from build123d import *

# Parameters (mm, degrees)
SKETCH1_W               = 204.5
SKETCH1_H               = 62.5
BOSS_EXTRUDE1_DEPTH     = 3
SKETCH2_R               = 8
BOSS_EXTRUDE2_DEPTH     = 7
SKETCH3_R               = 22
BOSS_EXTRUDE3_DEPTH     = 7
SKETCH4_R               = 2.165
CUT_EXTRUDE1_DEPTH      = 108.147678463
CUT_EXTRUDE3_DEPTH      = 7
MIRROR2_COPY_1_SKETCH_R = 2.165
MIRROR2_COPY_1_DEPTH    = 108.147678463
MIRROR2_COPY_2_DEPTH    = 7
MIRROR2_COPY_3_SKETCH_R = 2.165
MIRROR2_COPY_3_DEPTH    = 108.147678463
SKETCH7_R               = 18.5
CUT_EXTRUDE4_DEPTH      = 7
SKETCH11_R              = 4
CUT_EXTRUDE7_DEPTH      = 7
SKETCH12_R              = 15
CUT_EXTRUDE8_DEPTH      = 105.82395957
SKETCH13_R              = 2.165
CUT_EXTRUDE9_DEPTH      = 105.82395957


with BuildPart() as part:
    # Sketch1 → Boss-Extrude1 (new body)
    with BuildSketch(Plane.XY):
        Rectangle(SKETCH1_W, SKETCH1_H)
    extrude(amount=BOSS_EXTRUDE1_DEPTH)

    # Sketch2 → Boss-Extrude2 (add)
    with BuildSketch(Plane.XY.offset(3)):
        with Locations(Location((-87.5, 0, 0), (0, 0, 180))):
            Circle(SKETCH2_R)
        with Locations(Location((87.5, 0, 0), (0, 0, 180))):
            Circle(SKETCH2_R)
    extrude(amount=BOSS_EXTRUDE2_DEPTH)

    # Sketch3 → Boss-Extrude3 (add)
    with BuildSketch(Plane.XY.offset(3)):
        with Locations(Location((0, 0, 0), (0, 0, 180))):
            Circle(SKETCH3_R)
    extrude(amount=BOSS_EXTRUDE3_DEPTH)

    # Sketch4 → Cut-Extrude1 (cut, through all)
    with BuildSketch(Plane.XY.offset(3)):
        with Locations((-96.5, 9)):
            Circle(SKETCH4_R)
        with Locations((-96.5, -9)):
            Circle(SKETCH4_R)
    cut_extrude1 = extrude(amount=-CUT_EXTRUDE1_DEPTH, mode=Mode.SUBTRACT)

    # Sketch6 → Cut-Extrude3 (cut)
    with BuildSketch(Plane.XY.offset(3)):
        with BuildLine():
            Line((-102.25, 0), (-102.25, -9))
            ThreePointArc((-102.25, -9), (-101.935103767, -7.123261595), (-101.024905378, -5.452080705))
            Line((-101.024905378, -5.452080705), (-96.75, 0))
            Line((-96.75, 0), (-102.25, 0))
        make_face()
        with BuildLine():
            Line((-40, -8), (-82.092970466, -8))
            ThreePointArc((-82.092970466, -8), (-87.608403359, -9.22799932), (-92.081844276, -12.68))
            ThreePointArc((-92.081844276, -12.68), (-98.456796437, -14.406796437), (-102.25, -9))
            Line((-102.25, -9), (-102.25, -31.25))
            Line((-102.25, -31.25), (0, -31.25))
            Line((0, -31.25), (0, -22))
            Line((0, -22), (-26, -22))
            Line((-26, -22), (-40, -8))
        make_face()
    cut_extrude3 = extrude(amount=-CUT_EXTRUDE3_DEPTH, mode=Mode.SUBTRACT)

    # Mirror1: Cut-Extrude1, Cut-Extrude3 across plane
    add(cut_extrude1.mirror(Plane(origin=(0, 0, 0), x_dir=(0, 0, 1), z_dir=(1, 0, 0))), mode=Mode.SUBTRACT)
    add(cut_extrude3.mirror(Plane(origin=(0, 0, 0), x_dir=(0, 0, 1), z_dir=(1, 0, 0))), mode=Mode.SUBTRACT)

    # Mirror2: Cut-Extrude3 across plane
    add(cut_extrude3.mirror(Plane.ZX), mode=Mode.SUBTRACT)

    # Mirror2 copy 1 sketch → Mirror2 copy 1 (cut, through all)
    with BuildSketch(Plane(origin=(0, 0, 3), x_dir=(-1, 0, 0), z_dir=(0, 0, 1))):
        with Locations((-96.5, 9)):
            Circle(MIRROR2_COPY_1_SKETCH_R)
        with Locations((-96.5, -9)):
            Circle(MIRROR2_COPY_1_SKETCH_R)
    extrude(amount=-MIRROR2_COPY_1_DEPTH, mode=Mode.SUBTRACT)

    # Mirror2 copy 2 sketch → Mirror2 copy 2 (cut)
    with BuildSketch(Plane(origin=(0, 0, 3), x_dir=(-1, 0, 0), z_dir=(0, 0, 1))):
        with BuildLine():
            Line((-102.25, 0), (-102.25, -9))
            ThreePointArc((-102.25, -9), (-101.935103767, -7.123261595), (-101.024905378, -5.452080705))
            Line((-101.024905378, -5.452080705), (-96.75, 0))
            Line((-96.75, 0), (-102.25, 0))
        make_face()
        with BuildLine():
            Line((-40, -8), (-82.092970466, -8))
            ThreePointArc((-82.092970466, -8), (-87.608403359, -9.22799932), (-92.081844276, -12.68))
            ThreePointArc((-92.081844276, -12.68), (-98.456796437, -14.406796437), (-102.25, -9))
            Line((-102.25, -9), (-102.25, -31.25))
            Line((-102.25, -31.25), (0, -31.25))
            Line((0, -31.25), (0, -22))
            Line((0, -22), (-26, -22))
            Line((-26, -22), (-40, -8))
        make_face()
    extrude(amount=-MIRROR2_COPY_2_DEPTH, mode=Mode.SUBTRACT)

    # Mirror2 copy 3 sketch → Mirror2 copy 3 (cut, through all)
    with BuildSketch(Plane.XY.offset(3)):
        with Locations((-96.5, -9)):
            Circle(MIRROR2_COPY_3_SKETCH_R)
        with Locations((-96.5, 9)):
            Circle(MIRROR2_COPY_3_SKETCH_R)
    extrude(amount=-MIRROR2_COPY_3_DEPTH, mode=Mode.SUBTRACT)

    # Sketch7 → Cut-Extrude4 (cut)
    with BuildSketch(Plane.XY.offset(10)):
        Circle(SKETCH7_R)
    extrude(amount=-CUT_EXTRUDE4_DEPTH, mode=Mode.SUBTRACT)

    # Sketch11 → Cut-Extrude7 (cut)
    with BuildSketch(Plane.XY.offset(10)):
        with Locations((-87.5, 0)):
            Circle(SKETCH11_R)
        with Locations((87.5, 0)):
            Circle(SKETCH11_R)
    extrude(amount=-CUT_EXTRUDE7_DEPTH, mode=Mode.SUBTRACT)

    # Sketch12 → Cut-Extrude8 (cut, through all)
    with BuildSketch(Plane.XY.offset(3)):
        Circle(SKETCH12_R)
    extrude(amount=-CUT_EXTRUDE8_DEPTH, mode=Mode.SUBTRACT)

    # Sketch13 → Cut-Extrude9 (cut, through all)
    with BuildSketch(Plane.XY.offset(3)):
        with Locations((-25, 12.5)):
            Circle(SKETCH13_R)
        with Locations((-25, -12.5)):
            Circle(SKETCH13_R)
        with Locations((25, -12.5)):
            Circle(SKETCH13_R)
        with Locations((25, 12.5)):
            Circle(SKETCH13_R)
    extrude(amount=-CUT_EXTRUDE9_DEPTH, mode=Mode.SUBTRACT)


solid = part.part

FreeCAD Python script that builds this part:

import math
import FreeCAD as App
import Part
import Sketcher
Q = App.Units.Quantity


def add_polygon(sketch, points):
    """Adds a closed chain of lines whose ends are joined by coincident constraints."""
    first, n = sketch.GeometryCount, len(points)
    for a, b in zip(points, points[1:] + points[:1]):
        sketch.addGeometry(Part.LineSegment(App.Vector(*a, 0), App.Vector(*b, 0)), False)
    for i in range(n):
        sketch.addConstraint(Sketcher.Constraint("Coincident", first + i, 2, first + (i + 1) % n, 1))

doc = App.newDocument("Part")
body = doc.addObject("PartDesign::Body", "Body")

# Sketch on XY plane
sketch1 = doc.addObject("Sketcher::SketchObject", "Sketch")
body.addObject(sketch1)
sketch1.AttachmentSupport = (doc.XY_Plane, [""])
sketch1.MapMode = "FlatFace"
add_polygon(sketch1, [(-102, 31), (-102, -31), (102, -31), (102, 31)])  # lines 0-3
sketch1.addConstraint([
    Sketcher.Constraint("Vertical", 0),
    Sketcher.Constraint("Horizontal", 1),
    Sketcher.Constraint("Vertical", 2),
    Sketcher.Constraint("Horizontal", 3),
    Sketcher.Constraint("Symmetric", 0, 2, 2, 2, -1, 1),
    Sketcher.Constraint("DistanceX", 1, 1, 1, 2, Q("204.5 mm")),
    Sketcher.Constraint("DistanceY", 0, 2, 0, 1, Q("62.5 mm")),
])
pad1 = doc.addObject("PartDesign::Pad", "Pad")
body.addObject(pad1)
pad1.Profile = sketch1
pad1.Length = 3

# Sketch on XY plane
sketch2 = doc.addObject("Sketcher::SketchObject", "Sketch001")
body.addObject(sketch2)
sketch2.AttachmentSupport = (doc.XY_Plane, [""])
sketch2.MapMode = "FlatFace"
sketch2.AttachmentOffset = App.Placement(App.Vector(0, 0, 3), App.Rotation())
sketch2.addGeometry([
    Part.Circle(App.Vector(-88, 0, 0), App.Vector(0, 0, 1), 8),
    Part.Circle(App.Vector(88, 0, 0), App.Vector(0, 0, 1), 8),
], False)
sketch2.addConstraint([
    Sketcher.Constraint("Equal", 0, 1),
    Sketcher.Constraint("Symmetric", 0, 3, 1, 3, -1, 1),
    Sketcher.Constraint("PointOnObject", 0, 3, -1),
    Sketcher.Constraint("Diameter", 0, Q("16 mm")),
    Sketcher.Constraint("DistanceX", 0, 3, 1, 3, Q("175 mm")),
])
pad2 = doc.addObject("PartDesign::Pad", "Pad001")
body.addObject(pad2)
pad2.Profile = sketch2
pad2.Length = 7

# Sketch on XY plane
sketch3 = doc.addObject("Sketcher::SketchObject", "Sketch002")
body.addObject(sketch3)
sketch3.AttachmentSupport = (doc.XY_Plane, [""])
sketch3.MapMode = "FlatFace"
sketch3.AttachmentOffset = App.Placement(App.Vector(0, 0, 3), App.Rotation())
sketch3.addGeometry(Part.Circle(App.Vector(0, 0, 0), App.Vector(0, 0, 1), 22), False)
sketch3.addConstraint([
    Sketcher.Constraint("Coincident", 0, 3, -1, 1),
    Sketcher.Constraint("Diameter", 0, Q("44 mm")),
])
pad3 = doc.addObject("PartDesign::Pad", "Pad002")
body.addObject(pad3)
pad3.Profile = sketch3
pad3.Length = 7

# Sketch on XY plane
sketch4 = doc.addObject("Sketcher::SketchObject", "Sketch003")
body.addObject(sketch4)
sketch4.AttachmentSupport = (doc.XY_Plane, [""])
sketch4.MapMode = "FlatFace"
sketch4.AttachmentOffset = App.Placement(App.Vector(0, 0, 3), App.Rotation())
sketch4.addGeometry([
    Part.Circle(App.Vector(-96.5, 9, 0), App.Vector(0, 0, 1), 2.2),
    Part.Circle(App.Vector(-96.5, -9, 0), App.Vector(0, 0, 1), 2.2),
], False)
sketch4.addConstraint([
    Sketcher.Constraint("Equal", 0, 1),
    Sketcher.Constraint("Symmetric", 0, 3, 1, 3, -1),
    Sketcher.Constraint("Diameter", 0, Q("4.33 mm")),
    Sketcher.Constraint("DistanceY", -1, 1, 0, 3, Q("9 mm")),
    Sketcher.Constraint("DistanceX", 0, 3, -1, 1, Q("96.5 mm")),
])
pocket1 = doc.addObject("PartDesign::Pocket", "Pocket")
body.addObject(pocket1)
pocket1.Profile = sketch4
pocket1.Type = "ThroughAll"

# Sketch on XY plane
sketch5 = doc.addObject("Sketcher::SketchObject", "Sketch004")
body.addObject(sketch5)
sketch5.AttachmentSupport = (doc.XY_Plane, [""])
sketch5.MapMode = "FlatFace"
sketch5.AttachmentOffset = App.Placement(App.Vector(0, 0, 3), App.Rotation())
sketch5.addGeometry([
    Part.LineSegment(App.Vector(-102.2, 0, 0), App.Vector(-102.2, -9, 0)),  # 0
    Part.ArcOfCircle(Part.Circle(App.Vector(-96.5, -9, 0), App.Vector(0, 0, 1), 5.8), math.radians(142), math.radians(180)),  # 1
    Part.LineSegment(App.Vector(-101, -5.5, 0), App.Vector(-96.8, 0, 0)),  # 2
    Part.LineSegment(App.Vector(-96.8, 0, 0), App.Vector(-102.2, 0, 0)),  # 3
    Part.LineSegment(App.Vector(-40, -8, 0), App.Vector(-82.1, -8, 0)),  # 4
    Part.ArcOfCircle(Part.Circle(App.Vector(-82.1, -21, 0), App.Vector(0, 0, 1), 13), math.radians(90), math.radians(140)),  # 5
    Part.ArcOfCircle(Part.Circle(App.Vector(-96.5, -9, 0), App.Vector(0, 0, 1), 5.8), math.radians(180), math.radians(320)),  # 6
    Part.LineSegment(App.Vector(-102.2, -9, 0), App.Vector(-102.2, -31.2, 0)),  # 7
    Part.LineSegment(App.Vector(-102.2, -31.2, 0), App.Vector(0, -31.2, 0)),  # 8
    Part.LineSegment(App.Vector(0, -31.2, 0), App.Vector(0, -22, 0)),  # 9
    Part.LineSegment(App.Vector(0, -22, 0), App.Vector(-26, -22, 0)),  # 10
    Part.LineSegment(App.Vector(-26, -22, 0), App.Vector(-40, -8, 0)),  # 11
], False)
sketch5.addConstraint([
    Sketcher.Constraint("Tangent", 0, 2, 1, 2),
    Sketcher.Constraint("Tangent", 1, 1, 2, 1),
    Sketcher.Constraint("Coincident", 2, 2, 3, 1),
    Sketcher.Constraint("Coincident", 3, 2, 0, 1),
    Sketcher.Constraint("Tangent", 4, 2, 5, 1),
    Sketcher.Constraint("Tangent", 5, 2, 6, 2),
    Sketcher.Constraint("Tangent", 6, 1, 7, 1),
    Sketcher.Constraint("Coincident", 7, 2, 8, 1),
    Sketcher.Constraint("Coincident", 8, 2, 9, 1),
    Sketcher.Constraint("Coincident", 9, 2, 10, 1),
    Sketcher.Constraint("Coincident", 10, 2, 11, 1),
    Sketcher.Constraint("Coincident", 11, 2, 4, 1),
    Sketcher.Constraint("Vertical", 0),
    Sketcher.Constraint("Horizontal", 3),
    Sketcher.Constraint("Horizontal", 4),
    Sketcher.Constraint("Vertical", 7),
    Sketcher.Constraint("Horizontal", 8),
    Sketcher.Constraint("Vertical", 9),
    Sketcher.Constraint("Horizontal", 10),
    Sketcher.Constraint("Coincident", 6, 3, 1, 3),
    Sketcher.Constraint("Equal", 1, 6),
    Sketcher.Constraint("PointOnObject", 2, 2, -1),
    Sketcher.Constraint("PointOnObject", 8, 2, -2),
    Sketcher.Constraint("Radius", 5, Q("13 mm")),
    Sketcher.Constraint("DistanceX", 10, 2, 10, 1, Q("26 mm")),
    Sketcher.Constraint("DistanceY", 0, 2, 0, 1, Q("9 mm")),
    Sketcher.Constraint("Angle", 11, Q("135 deg")),
    Sketcher.Constraint("Radius", 1, Q("5.75 mm")),
    Sketcher.Constraint("DistanceX", 3, 2, 3, 1, Q("5.5 mm")),
    Sketcher.Constraint("DistanceY", 5, 3, -1, 1, Q("21 mm")),
    Sketcher.Constraint("DistanceY", 9, 2, -1, 1, Q("22 mm")),
    Sketcher.Constraint("DistanceX", 8, 1, 8, 2, Q("102.25 mm")),
    Sketcher.Constraint("DistanceY", 7, 2, 7, 1, Q("22.25 mm")),
])
pocket2 = doc.addObject("PartDesign::Pocket", "Pocket001")
body.addObject(pocket2)
pocket2.Profile = sketch5
pocket2.Length = 7
doc.recompute()

mirrored = doc.addObject("PartDesign::Mirrored", "Mirrored")
body.addObject(mirrored)
mirrored.Originals = [pocket1, pocket2]
mirrored.MirrorPlane = (doc.YZ_Plane, [""])
body.Tip = mirrored
doc.recompute()

mirrored2 = doc.addObject("PartDesign::Mirrored", "Mirrored001")
body.addObject(mirrored2)
mirrored2.Originals = [pocket2]
mirrored2.MirrorPlane = (doc.XZ_Plane, [""])
body.Tip = mirrored2

# Sketch on XY plane
sketch6 = doc.addObject("Sketcher::SketchObject", "Sketch005")
body.addObject(sketch6)
sketch6.AttachmentSupport = (doc.XY_Plane, [""])
sketch6.MapMode = "FlatFace"
sketch6.AttachmentOffset = App.Placement(App.Vector(0, 0, 3), App.Rotation())
sketch6.addGeometry([
    Part.Circle(App.Vector(96.5, -9, 0), App.Vector(0, 0, 1), 2.2),
    Part.Circle(App.Vector(96.5, 9, 0), App.Vector(0, 0, 1), 2.2),
], False)
sketch6.addConstraint([
    Sketcher.Constraint("Equal", 0, 1),
    Sketcher.Constraint("Symmetric", 0, 3, 1, 3, -1),
    Sketcher.Constraint("Diameter", 0, Q("4.33 mm")),
    Sketcher.Constraint("DistanceY", 0, 3, -1, 1, Q("9 mm")),
    Sketcher.Constraint("DistanceX", -1, 1, 0, 3, Q("96.5 mm")),
])
pocket3 = doc.addObject("PartDesign::Pocket", "Pocket002")
body.addObject(pocket3)
pocket3.Profile = sketch6
pocket3.Type = "ThroughAll"

# Sketch on XY plane
sketch7 = doc.addObject("Sketcher::SketchObject", "Sketch006")
body.addObject(sketch7)
sketch7.AttachmentSupport = (doc.XY_Plane, [""])
sketch7.MapMode = "FlatFace"
sketch7.AttachmentOffset = App.Placement(App.Vector(0, 0, 3), App.Rotation())
sketch7.addGeometry([
    Part.LineSegment(App.Vector(102.2, 0, 0), App.Vector(102.2, 9, 0)),  # 0
    Part.ArcOfCircle(Part.Circle(App.Vector(96.5, 9, 0), App.Vector(0, 0, 1), 5.8), math.radians(-38), math.radians(0)),  # 1
    Part.LineSegment(App.Vector(101, 5.5, 0), App.Vector(96.8, 0, 0)),  # 2
    Part.LineSegment(App.Vector(96.8, 0, 0), App.Vector(102.2, 0, 0)),  # 3
    Part.LineSegment(App.Vector(40, 8, 0), App.Vector(82.1, 8, 0)),  # 4
    Part.ArcOfCircle(Part.Circle(App.Vector(82.1, 21, 0), App.Vector(0, 0, 1), 13), math.radians(-90), math.radians(-40)),  # 5
    Part.ArcOfCircle(Part.Circle(App.Vector(96.5, 9, 0), App.Vector(0, 0, 1), 5.8), math.radians(0), math.radians(140)),  # 6
    Part.LineSegment(App.Vector(102.2, 9, 0), App.Vector(102.2, 31.2, 0)),  # 7
    Part.LineSegment(App.Vector(102.2, 31.2, 0), App.Vector(0, 31.2, 0)),  # 8
    Part.LineSegment(App.Vector(0, 31.2, 0), App.Vector(0, 22, 0)),  # 9
    Part.LineSegment(App.Vector(0, 22, 0), App.Vector(26, 22, 0)),  # 10
    Part.LineSegment(App.Vector(26, 22, 0), App.Vector(40, 8, 0)),  # 11
], False)
sketch7.addConstraint([
    Sketcher.Constraint("Tangent", 0, 2, 1, 2),
    Sketcher.Constraint("Tangent", 1, 1, 2, 1),
    Sketcher.Constraint("Coincident", 2, 2, 3, 1),
    Sketcher.Constraint("Coincident", 3, 2, 0, 1),
    Sketcher.Constraint("Tangent", 4, 2, 5, 1),
    Sketcher.Constraint("Tangent", 5, 2, 6, 2),
    Sketcher.Constraint("Tangent", 6, 1, 7, 1),
    Sketcher.Constraint("Coincident", 7, 2, 8, 1),
    Sketcher.Constraint("Coincident", 8, 2, 9, 1),
    Sketcher.Constraint("Coincident", 9, 2, 10, 1),
    Sketcher.Constraint("Coincident", 10, 2, 11, 1),
    Sketcher.Constraint("Coincident", 11, 2, 4, 1),
    Sketcher.Constraint("Vertical", 0),
    Sketcher.Constraint("Horizontal", 3),
    Sketcher.Constraint("Horizontal", 4),
    Sketcher.Constraint("Vertical", 7),
    Sketcher.Constraint("Horizontal", 8),
    Sketcher.Constraint("Vertical", 9),
    Sketcher.Constraint("Horizontal", 10),
    Sketcher.Constraint("Coincident", 6, 3, 1, 3),
    Sketcher.Constraint("Equal", 1, 6),
    Sketcher.Constraint("PointOnObject", 2, 2, -1),
    Sketcher.Constraint("PointOnObject", 8, 2, -2),
    Sketcher.Constraint("Radius", 5, Q("13 mm")),
    Sketcher.Constraint("DistanceX", 10, 1, 10, 2, Q("26 mm")),
    Sketcher.Constraint("DistanceY", 0, 1, 0, 2, Q("9 mm")),
    Sketcher.Constraint("Angle", 11, Q("-45 deg")),
    Sketcher.Constraint("Radius", 1, Q("5.75 mm")),
    Sketcher.Constraint("DistanceX", 3, 1, 3, 2, Q("5.5 mm")),
    Sketcher.Constraint("DistanceY", -1, 1, 5, 3, Q("21 mm")),
    Sketcher.Constraint("DistanceY", -1, 1, 9, 2, Q("22 mm")),
    Sketcher.Constraint("DistanceX", 8, 2, 8, 1, Q("102.25 mm")),
    Sketcher.Constraint("DistanceY", 7, 1, 7, 2, Q("22.25 mm")),
])
pocket4 = doc.addObject("PartDesign::Pocket", "Pocket003")
body.addObject(pocket4)
pocket4.Profile = sketch7
pocket4.Length = 7

# Sketch on XY plane
sketch8 = doc.addObject("Sketcher::SketchObject", "Sketch007")
body.addObject(sketch8)
sketch8.AttachmentSupport = (doc.XY_Plane, [""])
sketch8.MapMode = "FlatFace"
sketch8.AttachmentOffset = App.Placement(App.Vector(0, 0, 3), App.Rotation())
sketch8.addGeometry([
    Part.Circle(App.Vector(-96.5, -9, 0), App.Vector(0, 0, 1), 2.2),
    Part.Circle(App.Vector(-96.5, 9, 0), App.Vector(0, 0, 1), 2.2),
], False)
sketch8.addConstraint([
    Sketcher.Constraint("Equal", 0, 1),
    Sketcher.Constraint("Symmetric", 0, 3, 1, 3, -1),
    Sketcher.Constraint("Diameter", 0, Q("4.33 mm")),
    Sketcher.Constraint("DistanceY", 0, 3, -1, 1, Q("9 mm")),
    Sketcher.Constraint("DistanceX", 0, 3, -1, 1, Q("96.5 mm")),
])
pocket5 = doc.addObject("PartDesign::Pocket", "Pocket004")
body.addObject(pocket5)
pocket5.Profile = sketch8
pocket5.Type = "ThroughAll"

# Sketch on XY plane
sketch9 = doc.addObject("Sketcher::SketchObject", "Sketch008")
body.addObject(sketch9)
sketch9.AttachmentSupport = (doc.XY_Plane, [""])
sketch9.MapMode = "FlatFace"
sketch9.AttachmentOffset = App.Placement(App.Vector(0, 0, 10), App.Rotation())
sketch9.addGeometry(Part.Circle(App.Vector(0, 0, 0), App.Vector(0, 0, 1), 18), False)
sketch9.addConstraint([
    Sketcher.Constraint("Coincident", 0, 3, -1, 1),
    Sketcher.Constraint("Diameter", 0, Q("37 mm")),
])
pocket6 = doc.addObject("PartDesign::Pocket", "Pocket005")
body.addObject(pocket6)
pocket6.Profile = sketch9
pocket6.Length = 7

# Sketch on XY plane
sketch10 = doc.addObject("Sketcher::SketchObject", "Sketch009")
body.addObject(sketch10)
sketch10.AttachmentSupport = (doc.XY_Plane, [""])
sketch10.MapMode = "FlatFace"
sketch10.AttachmentOffset = App.Placement(App.Vector(0, 0, 10), App.Rotation())
sketch10.addGeometry([
    Part.Circle(App.Vector(-87.5, 0, 0), App.Vector(0, 0, 1), 4),
    Part.Circle(App.Vector(87.5, 0, 0), App.Vector(0, 0, 1), 4),
], False)
sketch10.addConstraint([
    Sketcher.Constraint("Equal", 0, 1),
    Sketcher.Constraint("Symmetric", 0, 3, 1, 3, -1, 1),
    Sketcher.Constraint("PointOnObject", 0, 3, -1),
    Sketcher.Constraint("Diameter", 0, Q("8 mm")),
    Sketcher.Constraint("DistanceX", 0, 3, 1, 3, Q("175 mm")),
])
pocket7 = doc.addObject("PartDesign::Pocket", "Pocket006")
body.addObject(pocket7)
pocket7.Profile = sketch10
pocket7.Length = 7

# Sketch on XY plane
sketch11 = doc.addObject("Sketcher::SketchObject", "Sketch010")
body.addObject(sketch11)
sketch11.AttachmentSupport = (doc.XY_Plane, [""])
sketch11.MapMode = "FlatFace"
sketch11.AttachmentOffset = App.Placement(App.Vector(0, 0, 3), App.Rotation())
sketch11.addGeometry(Part.Circle(App.Vector(0, 0, 0), App.Vector(0, 0, 1), 15), False)
sketch11.addConstraint([
    Sketcher.Constraint("Coincident", 0, 3, -1, 1),
    Sketcher.Constraint("Diameter", 0, Q("30 mm")),
])
pocket8 = doc.addObject("PartDesign::Pocket", "Pocket007")
body.addObject(pocket8)
pocket8.Profile = sketch11
pocket8.Type = "ThroughAll"

# Sketch on XY plane
sketch12 = doc.addObject("Sketcher::SketchObject", "Sketch011")
body.addObject(sketch12)
sketch12.AttachmentSupport = (doc.XY_Plane, [""])
sketch12.MapMode = "FlatFace"
sketch12.AttachmentOffset = App.Placement(App.Vector(0, 0, 3), App.Rotation())
sketch12.addGeometry([
    Part.Circle(App.Vector(-25, 12.5, 0), App.Vector(0, 0, 1), 2.2),
    Part.Circle(App.Vector(-25, -12.5, 0), App.Vector(0, 0, 1), 2.2),
    Part.Circle(App.Vector(25, -12.5, 0), App.Vector(0, 0, 1), 2.2),
    Part.Circle(App.Vector(25, 12.5, 0), App.Vector(0, 0, 1), 2.2),
], False)
sketch12.addConstraint([
    Sketcher.Constraint("Equal", 0, 1),
    Sketcher.Constraint("Equal", 1, 2),
    Sketcher.Constraint("Equal", 2, 3),
    Sketcher.Constraint("Symmetric", 0, 3, 2, 3, -1, 1),
    Sketcher.Constraint("Symmetric", 1, 3, 3, 3, -1, 1),
    Sketcher.Constraint("Symmetric", 1, 3, 2, 3, -2),
    Sketcher.Constraint("Diameter", 0, Q("4.33 mm")),
    Sketcher.Constraint("DistanceX", 0, 3, -1, 1, Q("25 mm")),
    Sketcher.Constraint("DistanceY", 1, 3, 0, 3, Q("25 mm")),
])
pocket9 = doc.addObject("PartDesign::Pocket", "Pocket008")
body.addObject(pocket9)
pocket9.Profile = sketch12
pocket9.Type = "ThroughAll"

doc.recompute()
